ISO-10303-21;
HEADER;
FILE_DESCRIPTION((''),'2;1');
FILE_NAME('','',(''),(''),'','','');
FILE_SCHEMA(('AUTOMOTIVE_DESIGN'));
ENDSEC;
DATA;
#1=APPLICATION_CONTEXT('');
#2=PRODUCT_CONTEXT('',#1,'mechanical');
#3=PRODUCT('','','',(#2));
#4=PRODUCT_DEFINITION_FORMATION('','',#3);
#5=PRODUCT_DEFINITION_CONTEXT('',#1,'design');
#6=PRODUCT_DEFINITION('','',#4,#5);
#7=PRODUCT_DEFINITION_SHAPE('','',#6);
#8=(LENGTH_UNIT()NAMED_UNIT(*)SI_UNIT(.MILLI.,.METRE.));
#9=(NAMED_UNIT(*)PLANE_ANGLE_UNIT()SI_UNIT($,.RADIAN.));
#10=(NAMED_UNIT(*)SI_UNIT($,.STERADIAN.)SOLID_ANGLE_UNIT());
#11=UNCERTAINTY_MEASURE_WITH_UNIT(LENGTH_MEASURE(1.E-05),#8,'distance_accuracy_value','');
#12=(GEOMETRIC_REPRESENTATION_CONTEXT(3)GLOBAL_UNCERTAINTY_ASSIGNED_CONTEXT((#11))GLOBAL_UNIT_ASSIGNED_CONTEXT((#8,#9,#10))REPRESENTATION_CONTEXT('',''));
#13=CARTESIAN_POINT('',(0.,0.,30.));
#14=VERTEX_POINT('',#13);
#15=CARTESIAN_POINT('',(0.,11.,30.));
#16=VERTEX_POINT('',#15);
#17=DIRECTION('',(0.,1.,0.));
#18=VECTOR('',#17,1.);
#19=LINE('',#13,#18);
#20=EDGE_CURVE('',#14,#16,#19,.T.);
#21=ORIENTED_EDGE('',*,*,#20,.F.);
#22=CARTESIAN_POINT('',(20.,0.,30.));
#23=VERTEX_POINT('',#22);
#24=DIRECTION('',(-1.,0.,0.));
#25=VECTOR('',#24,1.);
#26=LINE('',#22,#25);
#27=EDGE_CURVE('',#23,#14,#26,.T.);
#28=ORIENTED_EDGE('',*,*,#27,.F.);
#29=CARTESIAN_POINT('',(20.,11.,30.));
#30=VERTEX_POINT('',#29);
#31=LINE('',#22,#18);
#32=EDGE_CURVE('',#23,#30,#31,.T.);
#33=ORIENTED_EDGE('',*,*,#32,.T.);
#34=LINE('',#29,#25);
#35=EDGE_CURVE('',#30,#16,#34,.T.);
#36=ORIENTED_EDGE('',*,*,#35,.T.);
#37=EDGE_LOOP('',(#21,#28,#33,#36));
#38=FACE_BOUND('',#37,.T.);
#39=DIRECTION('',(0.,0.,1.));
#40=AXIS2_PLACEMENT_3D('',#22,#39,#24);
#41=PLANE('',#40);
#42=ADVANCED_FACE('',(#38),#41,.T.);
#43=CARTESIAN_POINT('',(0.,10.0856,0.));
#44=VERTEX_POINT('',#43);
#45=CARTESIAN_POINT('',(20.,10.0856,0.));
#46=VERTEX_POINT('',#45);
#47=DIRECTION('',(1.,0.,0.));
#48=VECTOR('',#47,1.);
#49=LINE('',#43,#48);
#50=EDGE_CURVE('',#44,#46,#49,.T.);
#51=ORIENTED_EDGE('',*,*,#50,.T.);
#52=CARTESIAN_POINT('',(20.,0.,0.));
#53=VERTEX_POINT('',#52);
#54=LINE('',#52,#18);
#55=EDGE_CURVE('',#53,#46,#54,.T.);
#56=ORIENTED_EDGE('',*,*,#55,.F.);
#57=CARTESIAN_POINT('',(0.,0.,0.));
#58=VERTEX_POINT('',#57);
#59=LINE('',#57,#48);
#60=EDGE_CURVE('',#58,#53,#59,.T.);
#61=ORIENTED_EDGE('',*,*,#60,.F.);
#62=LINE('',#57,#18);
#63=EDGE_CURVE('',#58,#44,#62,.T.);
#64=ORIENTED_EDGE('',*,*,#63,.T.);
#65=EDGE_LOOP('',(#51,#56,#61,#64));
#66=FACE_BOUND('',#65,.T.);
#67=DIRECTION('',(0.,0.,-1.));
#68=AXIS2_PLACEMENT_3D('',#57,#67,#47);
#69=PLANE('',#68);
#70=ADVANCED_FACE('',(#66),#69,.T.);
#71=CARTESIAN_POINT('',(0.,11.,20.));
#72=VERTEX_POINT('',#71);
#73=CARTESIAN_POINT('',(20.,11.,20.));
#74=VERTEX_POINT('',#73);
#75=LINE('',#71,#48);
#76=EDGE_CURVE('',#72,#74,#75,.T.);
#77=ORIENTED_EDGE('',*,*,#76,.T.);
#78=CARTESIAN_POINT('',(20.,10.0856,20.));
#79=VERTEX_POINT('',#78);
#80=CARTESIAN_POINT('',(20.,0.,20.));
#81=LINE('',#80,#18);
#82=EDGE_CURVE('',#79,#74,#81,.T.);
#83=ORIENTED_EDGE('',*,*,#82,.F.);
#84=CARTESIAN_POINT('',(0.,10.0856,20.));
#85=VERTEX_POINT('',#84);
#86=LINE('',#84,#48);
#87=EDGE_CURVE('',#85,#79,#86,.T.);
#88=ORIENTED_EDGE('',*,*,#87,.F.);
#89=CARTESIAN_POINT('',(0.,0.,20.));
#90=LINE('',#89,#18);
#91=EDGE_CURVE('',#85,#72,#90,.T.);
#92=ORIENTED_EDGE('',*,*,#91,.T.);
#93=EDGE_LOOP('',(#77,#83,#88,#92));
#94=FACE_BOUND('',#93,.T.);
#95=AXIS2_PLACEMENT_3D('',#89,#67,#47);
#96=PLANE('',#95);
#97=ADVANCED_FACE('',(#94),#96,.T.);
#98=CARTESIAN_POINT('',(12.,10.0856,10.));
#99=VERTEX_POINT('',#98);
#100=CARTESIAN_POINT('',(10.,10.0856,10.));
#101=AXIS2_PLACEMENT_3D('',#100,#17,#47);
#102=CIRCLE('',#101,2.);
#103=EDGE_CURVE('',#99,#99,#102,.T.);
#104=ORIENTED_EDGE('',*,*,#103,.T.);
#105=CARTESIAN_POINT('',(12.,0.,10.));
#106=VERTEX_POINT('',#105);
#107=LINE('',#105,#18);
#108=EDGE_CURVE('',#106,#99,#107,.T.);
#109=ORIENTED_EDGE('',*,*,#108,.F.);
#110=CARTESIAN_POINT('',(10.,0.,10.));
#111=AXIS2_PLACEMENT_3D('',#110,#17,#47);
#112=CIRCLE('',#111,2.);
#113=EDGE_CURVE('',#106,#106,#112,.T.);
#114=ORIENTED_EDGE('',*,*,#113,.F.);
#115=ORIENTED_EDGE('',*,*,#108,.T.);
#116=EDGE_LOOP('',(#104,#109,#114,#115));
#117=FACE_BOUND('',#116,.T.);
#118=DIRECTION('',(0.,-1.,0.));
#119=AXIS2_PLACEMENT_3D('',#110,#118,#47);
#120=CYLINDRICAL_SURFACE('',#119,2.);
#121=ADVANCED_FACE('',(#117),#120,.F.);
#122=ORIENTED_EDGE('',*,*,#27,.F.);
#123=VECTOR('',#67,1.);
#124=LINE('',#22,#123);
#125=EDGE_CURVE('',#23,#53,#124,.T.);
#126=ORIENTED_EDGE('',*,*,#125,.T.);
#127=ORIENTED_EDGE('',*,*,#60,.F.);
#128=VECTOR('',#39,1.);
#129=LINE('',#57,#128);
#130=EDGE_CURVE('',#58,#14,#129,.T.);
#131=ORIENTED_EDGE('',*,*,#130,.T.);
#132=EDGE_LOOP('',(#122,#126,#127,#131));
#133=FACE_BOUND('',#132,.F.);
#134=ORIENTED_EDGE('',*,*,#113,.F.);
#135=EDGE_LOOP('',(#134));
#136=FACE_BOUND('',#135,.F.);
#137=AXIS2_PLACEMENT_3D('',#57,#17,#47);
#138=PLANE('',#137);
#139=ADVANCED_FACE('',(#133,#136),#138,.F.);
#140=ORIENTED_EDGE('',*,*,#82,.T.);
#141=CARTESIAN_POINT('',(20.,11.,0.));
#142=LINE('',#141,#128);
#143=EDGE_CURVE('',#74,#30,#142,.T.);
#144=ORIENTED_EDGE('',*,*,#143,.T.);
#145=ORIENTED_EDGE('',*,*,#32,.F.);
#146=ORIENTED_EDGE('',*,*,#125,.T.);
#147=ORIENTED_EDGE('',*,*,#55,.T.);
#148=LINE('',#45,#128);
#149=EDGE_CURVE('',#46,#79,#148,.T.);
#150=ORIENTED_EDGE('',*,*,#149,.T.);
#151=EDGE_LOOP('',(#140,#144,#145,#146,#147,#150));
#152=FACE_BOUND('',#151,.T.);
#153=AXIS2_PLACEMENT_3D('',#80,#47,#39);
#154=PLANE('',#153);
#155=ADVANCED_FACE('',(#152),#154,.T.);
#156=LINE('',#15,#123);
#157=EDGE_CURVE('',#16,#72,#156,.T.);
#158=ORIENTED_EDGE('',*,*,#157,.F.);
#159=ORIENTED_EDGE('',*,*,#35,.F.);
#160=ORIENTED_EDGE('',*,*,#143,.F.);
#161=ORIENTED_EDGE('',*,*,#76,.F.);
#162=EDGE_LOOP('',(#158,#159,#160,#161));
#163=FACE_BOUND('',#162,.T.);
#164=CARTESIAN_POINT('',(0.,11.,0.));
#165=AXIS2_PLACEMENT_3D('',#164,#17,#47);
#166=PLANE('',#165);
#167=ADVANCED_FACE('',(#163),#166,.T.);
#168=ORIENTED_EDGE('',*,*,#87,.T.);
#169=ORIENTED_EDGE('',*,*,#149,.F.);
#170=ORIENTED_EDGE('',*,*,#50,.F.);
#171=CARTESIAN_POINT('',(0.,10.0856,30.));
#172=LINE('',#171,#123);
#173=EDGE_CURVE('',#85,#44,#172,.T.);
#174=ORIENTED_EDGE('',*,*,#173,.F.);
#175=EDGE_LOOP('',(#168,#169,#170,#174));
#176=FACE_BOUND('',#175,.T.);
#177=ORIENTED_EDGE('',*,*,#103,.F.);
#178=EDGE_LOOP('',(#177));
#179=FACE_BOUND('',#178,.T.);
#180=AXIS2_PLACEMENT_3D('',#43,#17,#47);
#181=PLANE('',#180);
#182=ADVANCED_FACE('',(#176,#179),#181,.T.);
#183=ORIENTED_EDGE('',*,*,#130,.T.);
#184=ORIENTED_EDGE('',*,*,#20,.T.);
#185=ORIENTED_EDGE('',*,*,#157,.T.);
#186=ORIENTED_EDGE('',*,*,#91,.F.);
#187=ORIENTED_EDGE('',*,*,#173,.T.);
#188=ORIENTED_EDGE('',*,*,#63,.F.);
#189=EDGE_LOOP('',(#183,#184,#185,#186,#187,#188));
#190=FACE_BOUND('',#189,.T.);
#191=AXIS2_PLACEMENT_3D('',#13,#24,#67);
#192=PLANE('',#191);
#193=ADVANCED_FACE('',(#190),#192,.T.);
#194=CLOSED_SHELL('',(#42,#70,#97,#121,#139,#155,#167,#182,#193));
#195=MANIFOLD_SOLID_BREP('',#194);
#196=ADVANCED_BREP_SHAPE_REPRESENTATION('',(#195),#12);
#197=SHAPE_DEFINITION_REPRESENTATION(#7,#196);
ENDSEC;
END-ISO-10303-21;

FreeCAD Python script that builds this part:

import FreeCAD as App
import Part
import Sketcher

doc = App.newDocument("Part")
params = doc.addObject("Spreadsheet::Sheet", "Params")
for row, (alias, value) in enumerate([
    ("sketch1_width", "20 mm"),
    ("sketch1_height", "10 mm"),
    ("pad1_length", "11 mm"),
    ("sketch2_diameter", "4 mm"),
    ("sketch2_width", "20 mm"),
    ("pad2_length", "10.0856 mm"),
], start=1):
    params.set(f"A{row}", alias)
    params.set(f"B{row}", "=" + value)
    params.setAlias(f"B{row}", alias)

body = doc.addObject("PartDesign::Body", "Body")

# Sketch on XZ plane
sketch1 = body.newObject("Sketcher::SketchObject", "Sketch")
sketch1.AttachmentSupport = (doc.getObject("XZ_Plane"), [""])
sketch1.MapMode = "FlatFace"
sketch1.addGeometry([
    Part.LineSegment(App.Vector(20, 20, 0), App.Vector(0, 20, 0)),
    Part.LineSegment(App.Vector(0, 20, 0), App.Vector(0, 30, 0)),
    Part.LineSegment(App.Vector(0, 30, 0), App.Vector(20, 30, 0)),
    Part.LineSegment(App.Vector(20, 30, 0), App.Vector(20, 20, 0)),
], False)
sketch1.addConstraint([
    Sketcher.Constraint("Coincident", 0, 2, 1, 1),
    Sketcher.Constraint("Coincident", 1, 2, 2, 1),
    Sketcher.Constraint("Coincident", 2, 2, 3, 1),
    Sketcher.Constraint("Coincident", 3, 2, 0, 1),
    Sketcher.Constraint("Horizontal", 0),
    Sketcher.Constraint("Vertical", 1),
    Sketcher.Constraint("Horizontal", 2),
    Sketcher.Constraint("Vertical", 3),
    Sketcher.Constraint("PointOnObject", 0, 2, -2),
    Sketcher.Constraint("DistanceX", 0, 2, 0, 1, 20.0),
    Sketcher.Constraint("DistanceY", 1, 1, 1, 2, 10.0),
    Sketcher.Constraint("DistanceY", -1, 1, 0, 2, 20.0),
])
sketch1.setExpression("Constraints[9]", "Params.sketch1_width")
sketch1.setExpression("Constraints[10]", "Params.sketch1_height")
pad1 = body.newObject("PartDesign::Pad", "Pad")
pad1.Profile = sketch1
pad1.setExpression("Length", "Params.pad1_length")
pad1.Reversed = True

# Sketch on XZ plane
sketch2 = body.newObject("Sketcher::SketchObject", "Sketch001")
sketch2.AttachmentSupport = (doc.getObject("XZ_Plane"), [""])
sketch2.MapMode = "FlatFace"
sketch2.addGeometry([
    Part.LineSegment(App.Vector(20, 0, 0), App.Vector(0, 0, 0)),  # 0
    Part.LineSegment(App.Vector(0, 0, 0), App.Vector(0, 20, 0)),  # 1
    Part.LineSegment(App.Vector(0, 20, 0), App.Vector(20, 20, 0)),  # 2
    Part.LineSegment(App.Vector(20, 20, 0), App.Vector(20, 0, 0)),  # 3
    Part.Circle(App.Vector(10, 10, 0), App.Vector(0, 0, 1), 2),  # 4
], False)
sketch2.addConstraint([
    Sketcher.Constraint("Coincident", 0, 2, 1, 1),
    Sketcher.Constraint("Coincident", 1, 2, 2, 1),
    Sketcher.Constraint("Coincident", 2, 2, 3, 1),
    Sketcher.Constraint("Coincident", 3, 2, 0, 1),
    Sketcher.Constraint("Horizontal", 0),
    Sketcher.Constraint("Vertical", 1),
    Sketcher.Constraint("Horizontal", 2),
    Sketcher.Constraint("Vertical", 3),
    Sketcher.Constraint("Coincident", 0, 2, -1, 1),
    Sketcher.Constraint("Equal", 2, 1),
    Sketcher.Constraint("Diameter", 4, 4.0),
    Sketcher.Constraint("DistanceX", 0, 2, 0, 1, 20.0),
    Sketcher.Constraint("DistanceX", -1, 1, 4, 3, 10.0),
    Sketcher.Constraint("DistanceY", -1, 1, 4, 3, 10.0),
])
sketch2.setExpression("Constraints[10]", "Params.sketch2_diameter")
sketch2.setExpression("Constraints[11]", "Params.sketch2_width")
pad2 = body.newObject("PartDesign::Pad", "Pad001")
pad2.Profile = sketch2
pad2.setExpression("Length", "Params.pad2_length")
pad2.Reversed = True

doc.recompute()
